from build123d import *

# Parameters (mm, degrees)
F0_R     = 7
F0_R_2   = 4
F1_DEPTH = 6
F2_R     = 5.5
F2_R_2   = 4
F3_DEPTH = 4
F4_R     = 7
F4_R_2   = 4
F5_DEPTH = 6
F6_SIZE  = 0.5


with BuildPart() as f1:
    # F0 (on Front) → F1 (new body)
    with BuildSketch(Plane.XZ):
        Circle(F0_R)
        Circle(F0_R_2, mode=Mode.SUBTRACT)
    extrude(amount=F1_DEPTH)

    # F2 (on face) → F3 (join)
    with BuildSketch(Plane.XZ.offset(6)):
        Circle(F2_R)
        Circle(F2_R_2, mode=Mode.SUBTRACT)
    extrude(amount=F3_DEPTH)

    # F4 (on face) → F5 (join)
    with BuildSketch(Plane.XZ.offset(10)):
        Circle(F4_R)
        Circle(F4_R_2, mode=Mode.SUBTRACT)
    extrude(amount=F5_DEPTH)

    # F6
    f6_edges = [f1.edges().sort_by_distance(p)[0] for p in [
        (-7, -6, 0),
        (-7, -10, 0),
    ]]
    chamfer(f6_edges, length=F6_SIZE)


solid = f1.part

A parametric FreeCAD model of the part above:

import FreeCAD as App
import Part
import Sketcher

V = App.Vector
Q = App.Units.Quantity


def edges_at(feature, points):
    """Names of the edges that pass closest to the given points."""
    edges = feature.Shape.Edges
    near = lambda p: min(range(len(edges)), key=lambda i: edges[i].distToShape(Part.Vertex(*p))[0])
    return sorted({f"Edge{near(p) + 1}" for p in points})

doc = App.newDocument("Part")
body = doc.addObject("PartDesign::Body", "Body")

sketch1 = doc.addObject("Sketcher::SketchObject", "Sketch")
body.addObject(sketch1)
sketch1.AttachmentSupport = (doc.XZ_Plane, [""])
sketch1.MapMode = "FlatFace"
sketch1.addGeometry([
    Part.Circle(V(0, 0, 0), V(0, 0, 1), 7),
    Part.Circle(V(0, 0, 0), V(0, 0, 1), 4),
], False)
sketch1.addConstraint([
    Sketcher.Constraint("Coincident", 0, 3, -1, 1),
    Sketcher.Constraint("Coincident", 1, 3, -1, 1),
    Sketcher.Constraint("Diameter", 0, Q("14 mm")),
    Sketcher.Constraint("Diameter", 1, Q("8 mm")),
])
pad1 = doc.addObject("PartDesign::Pad", "Pad")
body.addObject(pad1)
pad1.Profile = sketch1
pad1.Length = 6

sketch2 = doc.addObject("Sketcher::SketchObject", "Sketch001")
body.addObject(sketch2)
sketch2.AttachmentSupport = (doc.XZ_Plane, [""])
sketch2.MapMode = "FlatFace"
sketch2.AttachmentOffset = App.Placement(V(0, 0, 6), App.Rotation())
sketch2.addGeometry([
    Part.Circle(V(0, 0, 0), V(0, 0, 1), 5.5),
    Part.Circle(V(0, 0, 0), V(0, 0, 1), 4),
], False)
sketch2.addConstraint([
    Sketcher.Constraint("Coincident", 0, 3, -1, 1),
    Sketcher.Constraint("Coincident", 1, 3, -1, 1),
    Sketcher.Constraint("Diameter", 0, Q("11 mm")),
    Sketcher.Constraint("Diameter", 1, Q("8 mm")),
])
pad2 = doc.addObject("PartDesign::Pad", "Pad001")
body.addObject(pad2)
pad2.Profile = sketch2
pad2.Length = 4

sketch3 = doc.addObject("Sketcher::SketchObject", "Sketch002")
body.addObject(sketch3)
sketch3.AttachmentSupport = (doc.XZ_Plane, [""])
sketch3.MapMode = "FlatFace"
sketch3.AttachmentOffset = App.Placement(V(0, 0, 10), App.Rotation())
sketch3.addGeometry([
    Part.Circle(V(0, 0, 0), V(0, 0, 1), 7),
    Part.Circle(V(0, 0, 0), V(0, 0, 1), 4),
], False)
sketch3.addConstraint([
    Sketcher.Constraint("Coincident", 0, 3, -1, 1),
    Sketcher.Constraint("Coincident", 1, 3, -1, 1),
    Sketcher.Constraint("Diameter", 0, Q("14 mm")),
    Sketcher.Constraint("Diameter", 1, Q("8 mm")),
])
pad3 = doc.addObject("PartDesign::Pad", "Pad002")
body.addObject(pad3)
pad3.Profile = sketch3
pad3.Length = 6
doc.recompute()

chamfer = doc.addObject("PartDesign::Chamfer", "Chamfer")
body.addObject(chamfer)
chamfer.Base = (pad3, edges_at(pad3, [(-7, -6, 0), (-7, -10, 0)]))
chamfer.Size = 0.5

doc.recompute()
